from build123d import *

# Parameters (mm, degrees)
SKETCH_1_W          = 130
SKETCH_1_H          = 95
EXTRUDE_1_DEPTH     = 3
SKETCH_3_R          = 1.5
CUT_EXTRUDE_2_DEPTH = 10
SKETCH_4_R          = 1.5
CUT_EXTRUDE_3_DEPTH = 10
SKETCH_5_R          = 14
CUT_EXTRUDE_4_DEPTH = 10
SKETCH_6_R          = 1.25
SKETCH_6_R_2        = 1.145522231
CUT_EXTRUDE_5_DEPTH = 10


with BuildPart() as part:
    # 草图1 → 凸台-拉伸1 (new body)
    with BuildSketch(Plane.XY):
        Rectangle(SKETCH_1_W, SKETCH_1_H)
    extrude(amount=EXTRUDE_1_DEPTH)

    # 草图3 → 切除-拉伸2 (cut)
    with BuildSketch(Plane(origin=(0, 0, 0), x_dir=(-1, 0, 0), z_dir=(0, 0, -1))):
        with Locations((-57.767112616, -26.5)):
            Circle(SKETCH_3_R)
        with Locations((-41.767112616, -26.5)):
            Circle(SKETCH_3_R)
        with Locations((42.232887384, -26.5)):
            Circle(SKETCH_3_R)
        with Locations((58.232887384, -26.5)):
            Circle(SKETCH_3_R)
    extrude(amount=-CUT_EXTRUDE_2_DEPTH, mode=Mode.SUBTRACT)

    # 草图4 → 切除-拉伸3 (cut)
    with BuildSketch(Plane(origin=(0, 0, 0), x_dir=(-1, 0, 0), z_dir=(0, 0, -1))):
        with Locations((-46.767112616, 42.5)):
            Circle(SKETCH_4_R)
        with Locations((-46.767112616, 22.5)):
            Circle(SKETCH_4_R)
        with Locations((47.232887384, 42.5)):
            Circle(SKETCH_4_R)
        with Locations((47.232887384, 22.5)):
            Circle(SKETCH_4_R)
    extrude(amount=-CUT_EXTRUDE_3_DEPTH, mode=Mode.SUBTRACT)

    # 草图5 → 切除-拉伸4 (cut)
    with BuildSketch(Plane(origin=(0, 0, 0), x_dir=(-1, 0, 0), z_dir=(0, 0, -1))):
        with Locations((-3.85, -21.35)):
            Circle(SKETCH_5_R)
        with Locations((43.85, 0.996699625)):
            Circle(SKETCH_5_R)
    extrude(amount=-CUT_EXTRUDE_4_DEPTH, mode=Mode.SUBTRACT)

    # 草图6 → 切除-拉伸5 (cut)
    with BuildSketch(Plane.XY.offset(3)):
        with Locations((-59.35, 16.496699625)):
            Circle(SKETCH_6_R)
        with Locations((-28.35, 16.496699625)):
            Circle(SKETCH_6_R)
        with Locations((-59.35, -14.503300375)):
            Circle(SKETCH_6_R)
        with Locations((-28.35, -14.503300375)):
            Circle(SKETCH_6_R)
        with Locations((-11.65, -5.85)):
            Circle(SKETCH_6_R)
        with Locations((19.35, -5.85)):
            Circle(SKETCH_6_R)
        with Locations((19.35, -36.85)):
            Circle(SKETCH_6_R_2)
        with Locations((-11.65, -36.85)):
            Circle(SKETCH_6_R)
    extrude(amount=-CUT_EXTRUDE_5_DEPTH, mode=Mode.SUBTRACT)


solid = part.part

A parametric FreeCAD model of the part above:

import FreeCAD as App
import Part
import Sketcher

V = App.Vector

doc = App.newDocument("Part")
body = doc.addObject("PartDesign::Body", "Body")

# Sketch on XY plane
sketch1 = body.newObject("Sketcher::SketchObject", "Sketch")
sketch1.AttachmentSupport = (doc.getObject("XY_Plane"), [""])
sketch1.MapMode = "FlatFace"
sketch1.addGeometry([
    Part.LineSegment(V(-65, 48, 0), V(-65, -48, 0)),
    Part.LineSegment(V(-65, -48, 0), V(65, -48, 0)),
    Part.LineSegment(V(65, -48, 0), V(65, 48, 0)),
    Part.LineSegment(V(65, 48, 0), V(-65, 48, 0)),
], False)
sketch1.addConstraint([
    Sketcher.Constraint("Coincident", 0, 2, 1, 1),
    Sketcher.Constraint("Coincident", 1, 2, 2, 1),
    Sketcher.Constraint("Coincident", 2, 2, 3, 1),
    Sketcher.Constraint("Coincident", 3, 2, 0, 1),
    Sketcher.Constraint("Vertical", 0),
    Sketcher.Constraint("Horizontal", 1),
    Sketcher.Constraint("Vertical", 2),
    Sketcher.Constraint("Horizontal", 3),
    Sketcher.Constraint("Symmetric", 0, 2, 2, 2, -1, 1),
    Sketcher.Constraint("DistanceX", 1, 1, 1, 2, 130.0),
    Sketcher.Constraint("DistanceY", 0, 2, 0, 1, 95.0),
])
pad1 = body.newObject("PartDesign::Pad", "Pad")
pad1.Profile = sketch1
pad1.Length = 3

# Sketch on XY plane
sketch2 = body.newObject("Sketcher::SketchObject", "Sketch001")
sketch2.AttachmentSupport = (doc.getObject("XY_Plane"), [""])
sketch2.MapMode = "FlatFace"
sketch2.addGeometry([
    Part.Circle(V(57.8, -26.5, 0), V(0, 0, 1), 1.5),
    Part.Circle(V(41.8, -26.5, 0), V(0, 0, 1), 1.5),
    Part.Circle(V(-42.2, -26.5, 0), V(0, 0, 1), 1.5),
    Part.Circle(V(-58.2, -26.5, 0), V(0, 0, 1), 1.5),
], False)
sketch2.addConstraint([
    Sketcher.Constraint("Equal", 0, 1),
    Sketcher.Constraint("Equal", 1, 2),
    Sketcher.Constraint("Equal", 2, 3),
    Sketcher.Constraint("Horizontal", 0, 3, 1, 3),
    Sketcher.Constraint("Horizontal", 1, 3, 2, 3),
    Sketcher.Constraint("Horizontal", 2, 3, 3, 3),
    Sketcher.Constraint("Diameter", 0, 3.0),
    Sketcher.Constraint("DistanceX", 1, 3, 0, 3, 16.0),
    Sketcher.Constraint("DistanceX", 2, 3, 1, 3, 84.0),
    Sketcher.Constraint("DistanceX", 3, 3, 2, 3, 16.0),
    Sketcher.Constraint("DistanceY", 0, 3, -1, 1, 26.5),
    Sketcher.Constraint("DistanceX", -1, 1, 0, 3, 57.767113),
])
pocket1 = body.newObject("PartDesign::Pocket", "Pocket")
pocket1.Profile = sketch2
pocket1.Length = 10
pocket1.Reversed = True

# Sketch on XY plane
sketch3 = body.newObject("Sketcher::SketchObject", "Sketch002")
sketch3.AttachmentSupport = (doc.getObject("XY_Plane"), [""])
sketch3.MapMode = "FlatFace"
sketch3.addGeometry([
    Part.Circle(V(46.8, 42.5, 0), V(0, 0, 1), 1.5),
    Part.Circle(V(46.8, 22.5, 0), V(0, 0, 1), 1.5),
    Part.Circle(V(-47.2, 42.5, 0), V(0, 0, 1), 1.5),
    Part.Circle(V(-47.2, 22.5, 0), V(0, 0, 1), 1.5),
], False)
sketch3.addConstraint([
    Sketcher.Constraint("Equal", 0, 1),
    Sketcher.Constraint("Equal", 1, 2),
    Sketcher.Constraint("Equal", 2, 3),
    Sketcher.Constraint("Horizontal", 0, 3, 2, 3),
    Sketcher.Constraint("Horizontal", 1, 3, 3, 3),
    Sketcher.Constraint("Vertical", 0, 3, 1, 3),
    Sketcher.Constraint("Vertical", 2, 3, 3, 3),
    Sketcher.Constraint("Diameter", 0, 3.0),
    Sketcher.Constraint("DistanceY", 1, 3, 0, 3, 20.0),
    Sketcher.Constraint("DistanceX", 2, 3, 0, 3, 94.0),
    Sketcher.Constraint("DistanceY", -1, 1, 0, 3, 42.5),
    Sketcher.Constraint("DistanceX", -1, 1, 0, 3, 46.767113),
])
pocket2 = body.newObject("PartDesign::Pocket", "Pocket001")
pocket2.Profile = sketch3
pocket2.Length = 10
pocket2.Reversed = True

# Sketch on XY plane
sketch4 = body.newObject("Sketcher::SketchObject", "Sketch003")
sketch4.AttachmentSupport = (doc.getObject("XY_Plane"), [""])
sketch4.MapMode = "FlatFace"
sketch4.addGeometry([
    Part.Circle(V(4, -21, 0), V(0, 0, 1), 14),
    Part.Circle(V(-44, 1, 0), V(0, 0, 1), 14),
], False)
sketch4.addConstraint([
    Sketcher.Constraint("Equal", 0, 1),
    Sketcher.Constraint("Diameter", 0, 28.0),
    Sketcher.Constraint("DistanceX", 1, 3, 0, 3, 47.7),
    Sketcher.Constraint("DistanceX", -1, 1, 0, 3, 3.85),
    Sketcher.Constraint("DistanceY", 0, 3, -1, 1, 21.35),
    Sketcher.Constraint("DistanceY", -1, 1, 1, 3, 0.9967),
])
pocket3 = body.newObject("PartDesign::Pocket", "Pocket002")
pocket3.Profile = sketch4
pocket3.Length = 10
pocket3.Reversed = True

# Sketch on XY plane
sketch5 = body.newObject("Sketcher::SketchObject", "Sketch004")
sketch5.AttachmentSupport = (doc.getObject("XY_Plane"), [""])
sketch5.MapMode = "FlatFace"
sketch5.AttachmentOffset = App.Placement(V(0, 0, 3), App.Rotation())
sketch5.addGeometry([
    Part.Circle(V(-59.4, 16.5, 0), V(0, 0, 1), 1.2),  # 0
    Part.Circle(V(-28.4, 16.5, 0), V(0, 0, 1), 1.2),  # 1
    Part.Circle(V(-59.4, -14.5, 0), V(0, 0, 1), 1.2),  # 2
    Part.Circle(V(-28.4, -14.5, 0), V(0, 0, 1), 1.2),  # 3
    Part.Circle(V(-11.7, -5.8, 0), V(0, 0, 1), 1.2),  # 4
    Part.Circle(V(19.4, -5.8, 0), V(0, 0, 1), 1.2),  # 5
    Part.Circle(V(19.4, -36.9, 0), V(0, 0, 1), 1.1),  # 6
    Part.Circle(V(-11.7, -36.9, 0), V(0, 0, 1), 1.2),  # 7
], False)
sketch5.addConstraint([
    Sketcher.Constraint("Equal", 0, 1),
    Sketcher.Constraint("Equal", 1, 2),
    Sketcher.Constraint("Equal", 2, 3),
    Sketcher.Constraint("Equal", 3, 4),
    Sketcher.Constraint("Equal", 4, 5),
    Sketcher.Constraint("Equal", 5, 7),
    Sketcher.Constraint("Horizontal", 0, 3, 1, 3),
    Sketcher.Constraint("Horizontal", 2, 3, 3, 3),
    Sketcher.Constraint("Horizontal", 4, 3, 5, 3),
    Sketcher.Constraint("Horizontal", 6, 3, 7, 3),
    Sketcher.Constraint("Vertical", 0, 3, 2, 3),
    Sketcher.Constraint("Vertical", 1, 3, 3, 3),
    Sketcher.Constraint("Vertical", 5, 3, 6, 3),
    Sketcher.Constraint("Vertical", 4, 3, 7, 3),
    Sketcher.Constraint("Diameter", 0, 2.5),
    Sketcher.Constraint("DistanceX", 0, 3, 1, 3, 31.0),
    Sketcher.Constraint("DistanceY", 2, 3, 0, 3, 31.0),
    Sketcher.Constraint("DistanceX", 4, 3, 5, 3, 31.0),
    Sketcher.Constraint("DistanceY", 6, 3, 5, 3, 31.0),
    Sketcher.Constraint("DistanceX", 3, 3, 4, 3, 16.7),
    Sketcher.Constraint("DistanceX", 0, 3, -1, 1, 59.35),
    Sketcher.Constraint("DistanceY", 4, 3, -1, 1, 5.85),
    Sketcher.Constraint("Diameter", 6, 2.291044),
    Sketcher.Constraint("DistanceY", -1, 1, 0, 3, 16.4967),
])
pocket4 = body.newObject("PartDesign::Pocket", "Pocket003")
pocket4.Profile = sketch5
pocket4.Length = 10

doc.recompute()
